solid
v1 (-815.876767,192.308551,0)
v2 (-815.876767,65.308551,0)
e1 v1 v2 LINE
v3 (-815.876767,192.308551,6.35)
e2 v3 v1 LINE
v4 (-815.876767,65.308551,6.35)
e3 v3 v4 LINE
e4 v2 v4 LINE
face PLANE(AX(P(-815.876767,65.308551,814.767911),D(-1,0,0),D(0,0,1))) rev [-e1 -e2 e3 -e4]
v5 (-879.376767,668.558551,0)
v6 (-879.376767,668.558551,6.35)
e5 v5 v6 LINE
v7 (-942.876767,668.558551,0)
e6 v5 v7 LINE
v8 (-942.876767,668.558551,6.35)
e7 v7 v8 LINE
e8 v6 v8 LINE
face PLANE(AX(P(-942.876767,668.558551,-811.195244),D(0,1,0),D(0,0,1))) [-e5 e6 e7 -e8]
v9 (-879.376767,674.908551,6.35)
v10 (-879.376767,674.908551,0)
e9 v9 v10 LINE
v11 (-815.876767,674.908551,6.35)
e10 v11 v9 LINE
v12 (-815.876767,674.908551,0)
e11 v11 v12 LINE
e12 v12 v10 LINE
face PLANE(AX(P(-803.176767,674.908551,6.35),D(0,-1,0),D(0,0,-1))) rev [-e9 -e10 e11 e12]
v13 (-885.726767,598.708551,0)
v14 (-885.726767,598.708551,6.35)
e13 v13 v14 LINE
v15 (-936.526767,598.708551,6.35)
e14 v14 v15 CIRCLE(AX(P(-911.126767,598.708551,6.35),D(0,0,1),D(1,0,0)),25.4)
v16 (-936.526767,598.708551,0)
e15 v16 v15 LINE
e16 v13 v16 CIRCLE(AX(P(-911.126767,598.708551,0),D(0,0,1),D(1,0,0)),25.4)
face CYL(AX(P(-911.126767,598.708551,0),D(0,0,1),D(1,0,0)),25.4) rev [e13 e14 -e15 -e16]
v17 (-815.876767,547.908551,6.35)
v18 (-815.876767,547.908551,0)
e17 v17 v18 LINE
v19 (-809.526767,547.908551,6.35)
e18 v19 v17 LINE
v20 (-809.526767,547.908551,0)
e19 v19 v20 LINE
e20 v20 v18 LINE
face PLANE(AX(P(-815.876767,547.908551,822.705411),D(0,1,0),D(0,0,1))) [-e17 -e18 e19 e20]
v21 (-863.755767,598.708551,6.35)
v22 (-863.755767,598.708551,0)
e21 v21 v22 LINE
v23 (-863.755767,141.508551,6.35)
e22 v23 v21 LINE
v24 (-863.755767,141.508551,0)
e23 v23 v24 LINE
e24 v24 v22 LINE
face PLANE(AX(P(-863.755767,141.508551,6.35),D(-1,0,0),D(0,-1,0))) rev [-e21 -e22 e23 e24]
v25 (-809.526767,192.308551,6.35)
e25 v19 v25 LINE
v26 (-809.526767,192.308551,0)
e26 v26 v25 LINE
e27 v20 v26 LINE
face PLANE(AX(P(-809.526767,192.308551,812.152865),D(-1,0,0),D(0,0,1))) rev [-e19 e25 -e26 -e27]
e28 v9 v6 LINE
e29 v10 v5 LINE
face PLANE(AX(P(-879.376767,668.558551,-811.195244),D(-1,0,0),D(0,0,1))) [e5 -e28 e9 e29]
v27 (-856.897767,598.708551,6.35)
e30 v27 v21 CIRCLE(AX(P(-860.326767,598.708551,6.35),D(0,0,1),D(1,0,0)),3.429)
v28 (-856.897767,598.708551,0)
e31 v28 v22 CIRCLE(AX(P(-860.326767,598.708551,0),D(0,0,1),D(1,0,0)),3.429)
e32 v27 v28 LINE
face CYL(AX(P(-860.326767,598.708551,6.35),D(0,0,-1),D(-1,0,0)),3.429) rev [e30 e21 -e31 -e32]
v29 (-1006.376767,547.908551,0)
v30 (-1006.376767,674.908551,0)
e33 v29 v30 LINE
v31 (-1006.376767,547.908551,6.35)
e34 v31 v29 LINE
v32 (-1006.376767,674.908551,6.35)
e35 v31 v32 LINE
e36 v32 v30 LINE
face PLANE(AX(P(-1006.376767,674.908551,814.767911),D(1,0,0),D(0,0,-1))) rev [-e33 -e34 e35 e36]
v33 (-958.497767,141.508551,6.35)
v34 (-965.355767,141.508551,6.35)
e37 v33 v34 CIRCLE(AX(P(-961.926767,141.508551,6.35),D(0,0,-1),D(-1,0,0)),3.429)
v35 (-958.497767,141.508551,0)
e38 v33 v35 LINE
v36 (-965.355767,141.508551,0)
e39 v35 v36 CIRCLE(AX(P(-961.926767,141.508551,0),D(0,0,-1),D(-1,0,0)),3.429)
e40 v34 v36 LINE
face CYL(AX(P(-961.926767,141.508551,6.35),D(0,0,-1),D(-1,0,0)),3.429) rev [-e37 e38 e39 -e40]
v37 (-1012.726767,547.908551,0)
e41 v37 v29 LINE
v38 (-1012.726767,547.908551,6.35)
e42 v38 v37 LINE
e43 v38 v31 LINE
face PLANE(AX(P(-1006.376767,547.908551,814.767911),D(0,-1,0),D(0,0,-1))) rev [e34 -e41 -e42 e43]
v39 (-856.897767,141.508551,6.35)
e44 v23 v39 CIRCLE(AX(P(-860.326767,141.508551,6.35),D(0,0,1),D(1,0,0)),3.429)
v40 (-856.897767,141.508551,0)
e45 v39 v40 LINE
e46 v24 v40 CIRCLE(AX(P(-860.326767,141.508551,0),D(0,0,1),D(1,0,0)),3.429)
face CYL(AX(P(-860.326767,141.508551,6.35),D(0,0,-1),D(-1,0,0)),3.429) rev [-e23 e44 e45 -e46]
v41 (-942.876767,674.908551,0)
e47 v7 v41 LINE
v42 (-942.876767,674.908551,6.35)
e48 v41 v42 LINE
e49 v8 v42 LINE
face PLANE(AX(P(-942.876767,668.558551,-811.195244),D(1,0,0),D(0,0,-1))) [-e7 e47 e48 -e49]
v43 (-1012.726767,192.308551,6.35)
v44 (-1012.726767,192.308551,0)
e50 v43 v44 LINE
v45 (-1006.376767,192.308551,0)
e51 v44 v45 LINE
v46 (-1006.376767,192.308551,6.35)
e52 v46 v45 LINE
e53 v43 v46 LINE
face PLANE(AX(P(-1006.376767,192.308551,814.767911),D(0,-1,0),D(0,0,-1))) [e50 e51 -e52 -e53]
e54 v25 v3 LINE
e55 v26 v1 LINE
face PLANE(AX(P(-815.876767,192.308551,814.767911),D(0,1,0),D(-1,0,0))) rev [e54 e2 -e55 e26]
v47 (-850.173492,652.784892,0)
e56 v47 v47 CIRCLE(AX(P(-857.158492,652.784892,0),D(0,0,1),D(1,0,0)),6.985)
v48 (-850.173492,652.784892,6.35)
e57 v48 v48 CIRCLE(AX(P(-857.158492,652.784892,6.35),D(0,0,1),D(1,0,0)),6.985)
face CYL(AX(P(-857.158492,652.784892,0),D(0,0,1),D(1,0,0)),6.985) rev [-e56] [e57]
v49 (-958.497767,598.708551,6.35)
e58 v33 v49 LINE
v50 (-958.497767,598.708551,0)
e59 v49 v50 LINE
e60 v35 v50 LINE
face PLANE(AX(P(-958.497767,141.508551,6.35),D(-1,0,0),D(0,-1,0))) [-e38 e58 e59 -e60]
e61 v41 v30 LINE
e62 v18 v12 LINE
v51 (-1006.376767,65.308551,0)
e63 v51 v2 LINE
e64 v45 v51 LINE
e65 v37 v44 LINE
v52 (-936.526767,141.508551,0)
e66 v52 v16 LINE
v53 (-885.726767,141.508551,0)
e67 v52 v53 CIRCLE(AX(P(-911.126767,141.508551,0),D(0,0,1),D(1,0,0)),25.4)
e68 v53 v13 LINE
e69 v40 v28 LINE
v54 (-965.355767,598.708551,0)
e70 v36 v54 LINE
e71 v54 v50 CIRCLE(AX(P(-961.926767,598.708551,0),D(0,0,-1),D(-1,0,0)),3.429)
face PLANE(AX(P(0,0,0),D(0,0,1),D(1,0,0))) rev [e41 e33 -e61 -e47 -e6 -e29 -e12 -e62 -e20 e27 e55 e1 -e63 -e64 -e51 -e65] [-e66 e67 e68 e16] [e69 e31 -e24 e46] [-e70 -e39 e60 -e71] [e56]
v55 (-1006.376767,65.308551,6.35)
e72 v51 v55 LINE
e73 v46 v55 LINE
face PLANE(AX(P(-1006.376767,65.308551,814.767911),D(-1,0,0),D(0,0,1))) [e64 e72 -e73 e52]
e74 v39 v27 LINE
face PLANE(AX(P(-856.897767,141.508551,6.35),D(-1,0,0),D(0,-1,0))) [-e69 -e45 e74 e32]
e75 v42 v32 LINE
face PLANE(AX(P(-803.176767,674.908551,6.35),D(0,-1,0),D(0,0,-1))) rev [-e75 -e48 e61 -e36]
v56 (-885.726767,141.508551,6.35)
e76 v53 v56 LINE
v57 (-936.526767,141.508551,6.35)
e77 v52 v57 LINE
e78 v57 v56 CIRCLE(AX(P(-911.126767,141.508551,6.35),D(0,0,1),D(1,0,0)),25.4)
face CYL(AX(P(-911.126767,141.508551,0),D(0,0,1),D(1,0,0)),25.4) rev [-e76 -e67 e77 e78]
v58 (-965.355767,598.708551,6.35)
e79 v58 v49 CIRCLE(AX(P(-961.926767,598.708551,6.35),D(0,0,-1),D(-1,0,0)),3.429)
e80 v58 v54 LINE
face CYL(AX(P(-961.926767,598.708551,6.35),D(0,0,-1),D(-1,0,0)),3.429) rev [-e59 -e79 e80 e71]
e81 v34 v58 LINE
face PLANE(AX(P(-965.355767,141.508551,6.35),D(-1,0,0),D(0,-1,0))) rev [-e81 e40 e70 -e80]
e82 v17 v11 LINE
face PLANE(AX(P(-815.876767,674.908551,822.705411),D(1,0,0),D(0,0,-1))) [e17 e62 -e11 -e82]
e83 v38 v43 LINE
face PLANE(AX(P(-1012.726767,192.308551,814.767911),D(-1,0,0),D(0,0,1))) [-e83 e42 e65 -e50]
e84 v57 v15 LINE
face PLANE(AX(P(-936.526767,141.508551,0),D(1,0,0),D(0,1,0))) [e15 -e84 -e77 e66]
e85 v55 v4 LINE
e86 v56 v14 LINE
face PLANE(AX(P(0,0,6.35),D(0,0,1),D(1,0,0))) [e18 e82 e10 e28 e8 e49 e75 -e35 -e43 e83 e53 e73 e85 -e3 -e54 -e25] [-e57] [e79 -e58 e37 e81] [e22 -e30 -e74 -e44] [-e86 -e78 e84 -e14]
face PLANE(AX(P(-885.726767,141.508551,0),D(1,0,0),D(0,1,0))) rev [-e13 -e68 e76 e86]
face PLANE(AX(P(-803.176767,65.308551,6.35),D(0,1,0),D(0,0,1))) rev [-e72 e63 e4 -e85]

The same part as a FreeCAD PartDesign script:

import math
import FreeCAD as App
import Part
import Sketcher

V = App.Vector
Q = App.Units.Quantity


def add_polygon(sketch, points):
    """Adds a closed chain of lines whose ends are joined by coincident constraints."""
    first, n = sketch.GeometryCount, len(points)
    for a, b in zip(points, points[1:] + points[:1]):
        sketch.addGeometry(Part.LineSegment(App.Vector(*a, 0), App.Vector(*b, 0)), False)
    for i in range(n):
        sketch.addConstraint(Sketcher.Constraint("Coincident", first + i, 2, first + (i + 1) % n, 1))

doc = App.newDocument("Part")
body = doc.addObject("PartDesign::Body", "Body")

# Sketch on XY plane
sketch1 = doc.addObject("Sketcher::SketchObject", "Sketch")
body.addObject(sketch1)
sketch1.AttachmentSupport = (doc.XY_Plane, [""])
sketch1.MapMode = "FlatFace"
add_polygon(sketch1, [(-1019, 675), (-1019, 65), (-803, 65), (-803, 675)])  # lines 0-3
sketch1.addConstraint([
    Sketcher.Constraint("Vertical", 0),
    Sketcher.Constraint("Horizontal", 1),
    Sketcher.Constraint("Vertical", 2),
    Sketcher.Constraint("Horizontal", 3),
    Sketcher.Constraint("DistanceY", 0, 2, 0, 1, Q("24 in")),
    Sketcher.Constraint("DistanceX", 1, 1, 1, 2, Q("8.5 in")),
    Sketcher.Constraint("DistanceY", -1, 1, 0, 2, 65.308551),
    Sketcher.Constraint("DistanceX", 0, 2, -1, 1, 1019.076767),
])
pad1 = doc.addObject("PartDesign::Pad", "Pad")
body.addObject(pad1)
pad1.Profile = sketch1
pad1.Length = Q("0.25 in")

# Sketch on XY plane
sketch2 = doc.addObject("Sketcher::SketchObject", "Sketch001")
body.addObject(sketch2)
sketch2.AttachmentSupport = (doc.XY_Plane, [""])
sketch2.MapMode = "FlatFace"
sketch2.AttachmentOffset = App.Placement(V(0, 0, 0.25 * 25.4), App.Rotation())
sketch2.addGeometry([
    Part.LineSegment(V(-937, 599, 0), V(-937, 142, 0)),
    Part.ArcOfCircle(Part.Circle(V(-911, 142, 0), V(0, 0, 1), 25), math.radians(180), math.radians(360)),
    Part.LineSegment(V(-886, 142, 0), V(-886, 599, 0)),
    Part.ArcOfCircle(Part.Circle(V(-911, 599, 0), V(0, 0, 1), 25), math.radians(0), math.radians(180)),
], False)
sketch2.addConstraint([
    Sketcher.Constraint("Tangent", 0, 2, 1, 1),
    Sketcher.Constraint("Tangent", 1, 2, 2, 1),
    Sketcher.Constraint("Tangent", 2, 2, 3, 1),
    Sketcher.Constraint("Tangent", 3, 2, 0, 1),
    Sketcher.Constraint("Vertical", 0),
    Sketcher.Constraint("Vertical", 2),
    Sketcher.Constraint("Radius", 1, Q("1 in")),
    Sketcher.Constraint("DistanceY", 0, 2, 0, 1, Q("18 in")),
    Sketcher.Constraint("DistanceY", -1, 1, 1, 3, 141.508551),
    Sketcher.Constraint("DistanceX", 1, 3, -1, 1, 911.126767),
])
pocket1 = doc.addObject("PartDesign::Pocket", "Pocket")
body.addObject(pocket1)
pocket1.Profile = sketch2
pocket1.Type = "ThroughAll"

# Sketch on XY plane
sketch3 = doc.addObject("Sketcher::SketchObject", "Sketch002")
body.addObject(sketch3)
sketch3.AttachmentSupport = (doc.XY_Plane, [""])
sketch3.MapMode = "FlatFace"
sketch3.AttachmentOffset = App.Placement(V(0, 0, 0.25 * 25.4), App.Rotation())
add_polygon(sketch3, [(-816, 1970), (-816, 548), (492, 548), (2399, 2301), (1091, 3723)])  # lines 0-4
sketch3.addConstraint([
    Sketcher.Constraint("Vertical", 0),
    Sketcher.Constraint("Horizontal", 1),
    Sketcher.Constraint("Perpendicular", 2, 3),
    Sketcher.Constraint("Perpendicular", 3, 4),
    Sketcher.Constraint("Equal", 2, 4),
    Sketcher.Constraint("DistanceX", 1, 1, 1, 2, 1307.849641),
    Sketcher.Constraint("DistanceY", 0, 2, 0, 1, 1422.149641),
    Sketcher.Constraint("DistanceY", -1, 1, 3, 2, 3723.453801),
    Sketcher.Constraint("DistanceY", -1, 1, 0, 2, 547.908551),
    Sketcher.Constraint("DistanceX", 0, 2, -1, 1, 815.876767),
])
pocket2 = doc.addObject("PartDesign::Pocket", "Pocket001")
body.addObject(pocket2)
pocket2.Profile = sketch3
pocket2.Type = "ThroughAll"
pocket2.Midplane = True

# Sketch on XY plane
sketch4 = doc.addObject("Sketcher::SketchObject", "Sketch003")
body.addObject(sketch4)
sketch4.AttachmentSupport = (doc.XY_Plane, [""])
sketch4.MapMode = "FlatFace"
sketch4.AttachmentOffset = App.Placement(V(0, 0, 0.25 * 25.4), App.Rotation())
add_polygon(sketch4, [(-816, 192), (-816, -1230), (1091, -2983), (2399, -1561), (492, 192)])  # lines 0-4
sketch4.addConstraint([
    Sketcher.Constraint("Vertical", 0),
    Sketcher.Constraint("Horizontal", 4),
    Sketcher.Constraint("Perpendicular", 1, 2),
    Sketcher.Constraint("Perpendicular", 2, 3),
    Sketcher.Constraint("Equal", 1, 3),
    Sketcher.Constraint("DistanceX", 4, 2, 4, 1, 1307.849641),
    Sketcher.Constraint("DistanceY", 0, 2, 0, 1, 1422.149641),
    Sketcher.Constraint("DistanceY", 1, 2, -1, 1, 2983.236699),
    Sketcher.Constraint("DistanceY", 0, 2, -1, 1, 1229.84109),
    Sketcher.Constraint("DistanceX", 0, 2, -1, 1, 815.876767),
])
pocket3 = doc.addObject("PartDesign::Pocket", "Pocket002")
body.addObject(pocket3)
pocket3.Profile = sketch4
pocket3.Type = "ThroughAll"
pocket3.Midplane = True

# Sketch on XY plane
sketch5 = doc.addObject("Sketcher::SketchObject", "Sketch004")
body.addObject(sketch5)
sketch5.AttachmentSupport = (doc.XY_Plane, [""])
sketch5.MapMode = "FlatFace"
sketch5.AttachmentOffset = App.Placement(V(0, 0, 0.25 * 25.4), App.Rotation())
add_polygon(sketch5, [(-1006, 548), (-1006, 1970), (-2913, 3723), (-4221, 2301), (-2314, 548)])  # lines 0-4
sketch5.addConstraint([
    Sketcher.Constraint("Vertical", 0),
    Sketcher.Constraint("Horizontal", 4),
    Sketcher.Constraint("Perpendicular", 1, 2),
    Sketcher.Constraint("Perpendicular", 2, 3),
    Sketcher.Constraint("Equal", 1, 3),
    Sketcher.Constraint("DistanceX", 4, 1, 4, 2, 1307.849641),
    Sketcher.Constraint("DistanceY", 0, 1, 0, 2, 1422.149641),
    Sketcher.Constraint("DistanceY", -1, 1, 1, 2, 3723.453801),
    Sketcher.Constraint("DistanceX", 1, 2, -1, 1, 2913.01103),
    Sketcher.Constraint("DistanceX", 3, 2, -1, 1, 2314.226408),
])
pocket4 = doc.addObject("PartDesign::Pocket", "Pocket003")
body.addObject(pocket4)
pocket4.Profile = sketch5
pocket4.Type = "ThroughAll"
pocket4.Midplane = True

# Sketch on XY plane
sketch6 = doc.addObject("Sketcher::SketchObject", "Sketch005")
body.addObject(sketch6)
sketch6.AttachmentSupport = (doc.XY_Plane, [""])
sketch6.MapMode = "FlatFace"
sketch6.AttachmentOffset = App.Placement(V(0, 0, 0.25 * 25.4), App.Rotation())
add_polygon(sketch6, [(-1006, -1230), (-1006, 192), (-2314, 192), (-4221, -1561), (-2913, -2983)])  # lines 0-4
sketch6.addConstraint([
    Sketcher.Constraint("Vertical", 0),
    Sketcher.Constraint("Horizontal", 1),
    Sketcher.Constraint("Perpendicular", 2, 3),
    Sketcher.Constraint("Perpendicular", 3, 4),
    Sketcher.Constraint("Equal", 2, 4),
    Sketcher.Constraint("DistanceX", 1, 2, 1, 1, 1307.849641),
    Sketcher.Constraint("DistanceY", 0, 1, 0, 2, 1422.149641),
    Sketcher.Constraint("DistanceY", 3, 2, -1, 1, 2983.236699),
    Sketcher.Constraint("DistanceY", -1, 1, 0, 2, 192.308551),
    Sketcher.Constraint("DistanceX", 1, 2, -1, 1, 2314.226408),
])
pocket5 = doc.addObject("PartDesign::Pocket", "Pocket004")
body.addObject(pocket5)
pocket5.Profile = sketch6
pocket5.Type = "ThroughAll"
pocket5.Midplane = True

# Sketch on XY plane
sketch7 = doc.addObject("Sketcher::SketchObject", "Sketch006")
body.addObject(sketch7)
sketch7.AttachmentSupport = (doc.XY_Plane, [""])
sketch7.MapMode = "FlatFace"
sketch7.AttachmentOffset = App.Placement(V(0, 0, 0.25 * 25.4), App.Rotation())
add_polygon(sketch7, [(-1013, -870), (-1013, 1610), (-3137, 1610), (-3137, -870)])  # lines 0-3
sketch7.addConstraint([
    Sketcher.Constraint("Vertical", 0),
    Sketcher.Constraint("Horizontal", 1),
    Sketcher.Constraint("Vertical", 2),
    Sketcher.Constraint("Horizontal", 3),
    Sketcher.Constraint("DistanceX", 1, 2, 1, 1, 2124.524507),
    Sketcher.Constraint("DistanceY", 0, 1, 0, 2, 2480.124507),
    Sketcher.Constraint("DistanceX", 0, 2, -1, 1, 1012.726767),
    Sketcher.Constraint("DistanceY", -1, 1, 0, 2, 1610.170804),
])
pocket6 = doc.addObject("PartDesign::Pocket", "Pocket005")
body.addObject(pocket6)
pocket6.Profile = sketch7
pocket6.Type = "ThroughAll"
pocket6.Midplane = True

# Sketch on XY plane
sketch8 = doc.addObject("Sketcher::SketchObject", "Sketch007")
body.addObject(sketch8)
sketch8.AttachmentSupport = (doc.XY_Plane, [""])
sketch8.MapMode = "FlatFace"
sketch8.AttachmentOffset = App.Placement(V(0, 0, 0.25 * 25.4), App.Rotation())
add_polygon(sketch8, [(-810, 1605), (-810, -865), (1305, -865), (1305, 1605)])  # lines 0-3
sketch8.addConstraint([
    Sketcher.Constraint("Vertical", 0),
    Sketcher.Constraint("Horizontal", 1),
    Sketcher.Constraint("Vertical", 2),
    Sketcher.Constraint("Horizontal", 3),
    Sketcher.Constraint("DistanceX", 1, 1, 1, 2, 2114.537658),
    Sketcher.Constraint("DistanceY", 0, 2, 0, 1, 2470.137658),
    Sketcher.Constraint("DistanceX", -1, 1, 1, 2, 1305.01089),
    Sketcher.Constraint("DistanceY", -1, 1, 2, 2, 1605.17738),
])
pocket7 = doc.addObject("PartDesign::Pocket", "Pocket006")
body.addObject(pocket7)
pocket7.Profile = sketch8
pocket7.Type = "ThroughAll"
pocket7.Midplane = True

# Sketch on XY plane
sketch9 = doc.addObject("Sketcher::SketchObject", "Sketch008")
body.addObject(sketch9)
sketch9.AttachmentSupport = (doc.XY_Plane, [""])
sketch9.MapMode = "FlatFace"
add_polygon(sketch9, [(-879, 675), (-879, 669), (-943, 669), (-943, 675)])  # lines 0-3
sketch9.addConstraint([
    Sketcher.Constraint("Vertical", 0),
    Sketcher.Constraint("Horizontal", 1),
    Sketcher.Constraint("Vertical", 2),
    Sketcher.Constraint("Horizontal", 3),
    Sketcher.Constraint("DistanceX", 1, 2, 1, 1, Q("2.5 in")),
    Sketcher.Constraint("DistanceY", 0, 2, 0, 1, Q("0.25 in")),
    Sketcher.Constraint("DistanceY", -1, 1, 0, 2, 668.558551),
    Sketcher.Constraint("DistanceX", 0, 2, -1, 1, 879.376767),
])
pocket8 = doc.addObject("PartDesign::Pocket", "Pocket007")
body.addObject(pocket8)
pocket8.Profile = sketch9
pocket8.Type = "ThroughAll"
pocket8.Midplane = True

# Sketch on XY plane
sketch10 = doc.addObject("Sketcher::SketchObject", "Sketch009")
body.addObject(sketch10)
sketch10.AttachmentSupport = (doc.XY_Plane, [""])
sketch10.MapMode = "FlatFace"
sketch10.addGeometry([
    Part.LineSegment(V(-958.5, 598.7, 0), V(-958.5, 141.5, 0)),
    Part.ArcOfCircle(Part.Circle(V(-961.9, 141.5, 0), V(0, 0, 1), 3.4), math.radians(180), math.radians(360)),
    Part.LineSegment(V(-965.4, 141.5, 0), V(-965.4, 598.7, 0)),
    Part.ArcOfCircle(Part.Circle(V(-961.9, 598.7, 0), V(0, 0, 1), 3.4), math.radians(0), math.radians(180)),
], False)
sketch10.addConstraint([
    Sketcher.Constraint("Tangent", 0, 2, 1, 2),
    Sketcher.Constraint("Tangent", 1, 1, 2, 1),
    Sketcher.Constraint("Tangent", 2, 2, 3, 2),
    Sketcher.Constraint("Tangent", 3, 1, 0, 1),
    Sketcher.Constraint("Vertical", 0),
    Sketcher.Constraint("Vertical", 2),
    Sketcher.Constraint("DistanceY", 0, 2, 0, 1, Q("18 in")),
    Sketcher.Constraint("Radius", 1, Q("0.135 in")),
    Sketcher.Constraint("DistanceY", -1, 1, 1, 3, 141.508551),
    Sketcher.Constraint("DistanceX", 1, 3, -1, 1, 961.926767),
])
pocket9 = doc.addObject("PartDesign::Pocket", "Pocket008")
body.addObject(pocket9)
pocket9.Profile = sketch10
pocket9.Type = "ThroughAll"
pocket9.Reversed = True
doc.recompute()

datumplane = doc.addObject("PartDesign::Plane", "DatumPlane")
body.addObject(datumplane)
datumplane.AttachmentSupport = (doc.YZ_Plane, [""])
datumplane.MapMode = "FlatFace"
datumplane.AttachmentOffset = App.Placement(V(0, 0, -911.126767), App.Rotation())
mirrored = doc.addObject("PartDesign::Mirrored", "Mirrored")
body.addObject(mirrored)
mirrored.Originals = [pocket9]
mirrored.MirrorPlane = (datumplane, [""])
body.Tip = mirrored

# Sketch on XY plane
sketch11 = doc.addObject("Sketcher::SketchObject", "Sketch010")
body.addObject(sketch11)
sketch11.AttachmentSupport = (doc.XY_Plane, [""])
sketch11.MapMode = "FlatFace"
sketch11.AttachmentOffset = App.Placement(V(0, 0, 0.25 * 25.4), App.Rotation())
sketch11.addGeometry(Part.Circle(V(-857, 653, 0), V(0, 0, 1), 7), False)
sketch11.addConstraint([
    Sketcher.Constraint("Diameter", 0, Q("0.55 in")),
    Sketcher.Constraint("DistanceX", 0, 3, -1, 1, 857.158492),
    Sketcher.Constraint("DistanceY", -1, 1, 0, 3, 652.784892),
])
pocket10 = doc.addObject("PartDesign::Pocket", "Pocket009")
body.addObject(pocket10)
pocket10.Profile = sketch11
pocket10.Type = "ThroughAll"

doc.recompute()
